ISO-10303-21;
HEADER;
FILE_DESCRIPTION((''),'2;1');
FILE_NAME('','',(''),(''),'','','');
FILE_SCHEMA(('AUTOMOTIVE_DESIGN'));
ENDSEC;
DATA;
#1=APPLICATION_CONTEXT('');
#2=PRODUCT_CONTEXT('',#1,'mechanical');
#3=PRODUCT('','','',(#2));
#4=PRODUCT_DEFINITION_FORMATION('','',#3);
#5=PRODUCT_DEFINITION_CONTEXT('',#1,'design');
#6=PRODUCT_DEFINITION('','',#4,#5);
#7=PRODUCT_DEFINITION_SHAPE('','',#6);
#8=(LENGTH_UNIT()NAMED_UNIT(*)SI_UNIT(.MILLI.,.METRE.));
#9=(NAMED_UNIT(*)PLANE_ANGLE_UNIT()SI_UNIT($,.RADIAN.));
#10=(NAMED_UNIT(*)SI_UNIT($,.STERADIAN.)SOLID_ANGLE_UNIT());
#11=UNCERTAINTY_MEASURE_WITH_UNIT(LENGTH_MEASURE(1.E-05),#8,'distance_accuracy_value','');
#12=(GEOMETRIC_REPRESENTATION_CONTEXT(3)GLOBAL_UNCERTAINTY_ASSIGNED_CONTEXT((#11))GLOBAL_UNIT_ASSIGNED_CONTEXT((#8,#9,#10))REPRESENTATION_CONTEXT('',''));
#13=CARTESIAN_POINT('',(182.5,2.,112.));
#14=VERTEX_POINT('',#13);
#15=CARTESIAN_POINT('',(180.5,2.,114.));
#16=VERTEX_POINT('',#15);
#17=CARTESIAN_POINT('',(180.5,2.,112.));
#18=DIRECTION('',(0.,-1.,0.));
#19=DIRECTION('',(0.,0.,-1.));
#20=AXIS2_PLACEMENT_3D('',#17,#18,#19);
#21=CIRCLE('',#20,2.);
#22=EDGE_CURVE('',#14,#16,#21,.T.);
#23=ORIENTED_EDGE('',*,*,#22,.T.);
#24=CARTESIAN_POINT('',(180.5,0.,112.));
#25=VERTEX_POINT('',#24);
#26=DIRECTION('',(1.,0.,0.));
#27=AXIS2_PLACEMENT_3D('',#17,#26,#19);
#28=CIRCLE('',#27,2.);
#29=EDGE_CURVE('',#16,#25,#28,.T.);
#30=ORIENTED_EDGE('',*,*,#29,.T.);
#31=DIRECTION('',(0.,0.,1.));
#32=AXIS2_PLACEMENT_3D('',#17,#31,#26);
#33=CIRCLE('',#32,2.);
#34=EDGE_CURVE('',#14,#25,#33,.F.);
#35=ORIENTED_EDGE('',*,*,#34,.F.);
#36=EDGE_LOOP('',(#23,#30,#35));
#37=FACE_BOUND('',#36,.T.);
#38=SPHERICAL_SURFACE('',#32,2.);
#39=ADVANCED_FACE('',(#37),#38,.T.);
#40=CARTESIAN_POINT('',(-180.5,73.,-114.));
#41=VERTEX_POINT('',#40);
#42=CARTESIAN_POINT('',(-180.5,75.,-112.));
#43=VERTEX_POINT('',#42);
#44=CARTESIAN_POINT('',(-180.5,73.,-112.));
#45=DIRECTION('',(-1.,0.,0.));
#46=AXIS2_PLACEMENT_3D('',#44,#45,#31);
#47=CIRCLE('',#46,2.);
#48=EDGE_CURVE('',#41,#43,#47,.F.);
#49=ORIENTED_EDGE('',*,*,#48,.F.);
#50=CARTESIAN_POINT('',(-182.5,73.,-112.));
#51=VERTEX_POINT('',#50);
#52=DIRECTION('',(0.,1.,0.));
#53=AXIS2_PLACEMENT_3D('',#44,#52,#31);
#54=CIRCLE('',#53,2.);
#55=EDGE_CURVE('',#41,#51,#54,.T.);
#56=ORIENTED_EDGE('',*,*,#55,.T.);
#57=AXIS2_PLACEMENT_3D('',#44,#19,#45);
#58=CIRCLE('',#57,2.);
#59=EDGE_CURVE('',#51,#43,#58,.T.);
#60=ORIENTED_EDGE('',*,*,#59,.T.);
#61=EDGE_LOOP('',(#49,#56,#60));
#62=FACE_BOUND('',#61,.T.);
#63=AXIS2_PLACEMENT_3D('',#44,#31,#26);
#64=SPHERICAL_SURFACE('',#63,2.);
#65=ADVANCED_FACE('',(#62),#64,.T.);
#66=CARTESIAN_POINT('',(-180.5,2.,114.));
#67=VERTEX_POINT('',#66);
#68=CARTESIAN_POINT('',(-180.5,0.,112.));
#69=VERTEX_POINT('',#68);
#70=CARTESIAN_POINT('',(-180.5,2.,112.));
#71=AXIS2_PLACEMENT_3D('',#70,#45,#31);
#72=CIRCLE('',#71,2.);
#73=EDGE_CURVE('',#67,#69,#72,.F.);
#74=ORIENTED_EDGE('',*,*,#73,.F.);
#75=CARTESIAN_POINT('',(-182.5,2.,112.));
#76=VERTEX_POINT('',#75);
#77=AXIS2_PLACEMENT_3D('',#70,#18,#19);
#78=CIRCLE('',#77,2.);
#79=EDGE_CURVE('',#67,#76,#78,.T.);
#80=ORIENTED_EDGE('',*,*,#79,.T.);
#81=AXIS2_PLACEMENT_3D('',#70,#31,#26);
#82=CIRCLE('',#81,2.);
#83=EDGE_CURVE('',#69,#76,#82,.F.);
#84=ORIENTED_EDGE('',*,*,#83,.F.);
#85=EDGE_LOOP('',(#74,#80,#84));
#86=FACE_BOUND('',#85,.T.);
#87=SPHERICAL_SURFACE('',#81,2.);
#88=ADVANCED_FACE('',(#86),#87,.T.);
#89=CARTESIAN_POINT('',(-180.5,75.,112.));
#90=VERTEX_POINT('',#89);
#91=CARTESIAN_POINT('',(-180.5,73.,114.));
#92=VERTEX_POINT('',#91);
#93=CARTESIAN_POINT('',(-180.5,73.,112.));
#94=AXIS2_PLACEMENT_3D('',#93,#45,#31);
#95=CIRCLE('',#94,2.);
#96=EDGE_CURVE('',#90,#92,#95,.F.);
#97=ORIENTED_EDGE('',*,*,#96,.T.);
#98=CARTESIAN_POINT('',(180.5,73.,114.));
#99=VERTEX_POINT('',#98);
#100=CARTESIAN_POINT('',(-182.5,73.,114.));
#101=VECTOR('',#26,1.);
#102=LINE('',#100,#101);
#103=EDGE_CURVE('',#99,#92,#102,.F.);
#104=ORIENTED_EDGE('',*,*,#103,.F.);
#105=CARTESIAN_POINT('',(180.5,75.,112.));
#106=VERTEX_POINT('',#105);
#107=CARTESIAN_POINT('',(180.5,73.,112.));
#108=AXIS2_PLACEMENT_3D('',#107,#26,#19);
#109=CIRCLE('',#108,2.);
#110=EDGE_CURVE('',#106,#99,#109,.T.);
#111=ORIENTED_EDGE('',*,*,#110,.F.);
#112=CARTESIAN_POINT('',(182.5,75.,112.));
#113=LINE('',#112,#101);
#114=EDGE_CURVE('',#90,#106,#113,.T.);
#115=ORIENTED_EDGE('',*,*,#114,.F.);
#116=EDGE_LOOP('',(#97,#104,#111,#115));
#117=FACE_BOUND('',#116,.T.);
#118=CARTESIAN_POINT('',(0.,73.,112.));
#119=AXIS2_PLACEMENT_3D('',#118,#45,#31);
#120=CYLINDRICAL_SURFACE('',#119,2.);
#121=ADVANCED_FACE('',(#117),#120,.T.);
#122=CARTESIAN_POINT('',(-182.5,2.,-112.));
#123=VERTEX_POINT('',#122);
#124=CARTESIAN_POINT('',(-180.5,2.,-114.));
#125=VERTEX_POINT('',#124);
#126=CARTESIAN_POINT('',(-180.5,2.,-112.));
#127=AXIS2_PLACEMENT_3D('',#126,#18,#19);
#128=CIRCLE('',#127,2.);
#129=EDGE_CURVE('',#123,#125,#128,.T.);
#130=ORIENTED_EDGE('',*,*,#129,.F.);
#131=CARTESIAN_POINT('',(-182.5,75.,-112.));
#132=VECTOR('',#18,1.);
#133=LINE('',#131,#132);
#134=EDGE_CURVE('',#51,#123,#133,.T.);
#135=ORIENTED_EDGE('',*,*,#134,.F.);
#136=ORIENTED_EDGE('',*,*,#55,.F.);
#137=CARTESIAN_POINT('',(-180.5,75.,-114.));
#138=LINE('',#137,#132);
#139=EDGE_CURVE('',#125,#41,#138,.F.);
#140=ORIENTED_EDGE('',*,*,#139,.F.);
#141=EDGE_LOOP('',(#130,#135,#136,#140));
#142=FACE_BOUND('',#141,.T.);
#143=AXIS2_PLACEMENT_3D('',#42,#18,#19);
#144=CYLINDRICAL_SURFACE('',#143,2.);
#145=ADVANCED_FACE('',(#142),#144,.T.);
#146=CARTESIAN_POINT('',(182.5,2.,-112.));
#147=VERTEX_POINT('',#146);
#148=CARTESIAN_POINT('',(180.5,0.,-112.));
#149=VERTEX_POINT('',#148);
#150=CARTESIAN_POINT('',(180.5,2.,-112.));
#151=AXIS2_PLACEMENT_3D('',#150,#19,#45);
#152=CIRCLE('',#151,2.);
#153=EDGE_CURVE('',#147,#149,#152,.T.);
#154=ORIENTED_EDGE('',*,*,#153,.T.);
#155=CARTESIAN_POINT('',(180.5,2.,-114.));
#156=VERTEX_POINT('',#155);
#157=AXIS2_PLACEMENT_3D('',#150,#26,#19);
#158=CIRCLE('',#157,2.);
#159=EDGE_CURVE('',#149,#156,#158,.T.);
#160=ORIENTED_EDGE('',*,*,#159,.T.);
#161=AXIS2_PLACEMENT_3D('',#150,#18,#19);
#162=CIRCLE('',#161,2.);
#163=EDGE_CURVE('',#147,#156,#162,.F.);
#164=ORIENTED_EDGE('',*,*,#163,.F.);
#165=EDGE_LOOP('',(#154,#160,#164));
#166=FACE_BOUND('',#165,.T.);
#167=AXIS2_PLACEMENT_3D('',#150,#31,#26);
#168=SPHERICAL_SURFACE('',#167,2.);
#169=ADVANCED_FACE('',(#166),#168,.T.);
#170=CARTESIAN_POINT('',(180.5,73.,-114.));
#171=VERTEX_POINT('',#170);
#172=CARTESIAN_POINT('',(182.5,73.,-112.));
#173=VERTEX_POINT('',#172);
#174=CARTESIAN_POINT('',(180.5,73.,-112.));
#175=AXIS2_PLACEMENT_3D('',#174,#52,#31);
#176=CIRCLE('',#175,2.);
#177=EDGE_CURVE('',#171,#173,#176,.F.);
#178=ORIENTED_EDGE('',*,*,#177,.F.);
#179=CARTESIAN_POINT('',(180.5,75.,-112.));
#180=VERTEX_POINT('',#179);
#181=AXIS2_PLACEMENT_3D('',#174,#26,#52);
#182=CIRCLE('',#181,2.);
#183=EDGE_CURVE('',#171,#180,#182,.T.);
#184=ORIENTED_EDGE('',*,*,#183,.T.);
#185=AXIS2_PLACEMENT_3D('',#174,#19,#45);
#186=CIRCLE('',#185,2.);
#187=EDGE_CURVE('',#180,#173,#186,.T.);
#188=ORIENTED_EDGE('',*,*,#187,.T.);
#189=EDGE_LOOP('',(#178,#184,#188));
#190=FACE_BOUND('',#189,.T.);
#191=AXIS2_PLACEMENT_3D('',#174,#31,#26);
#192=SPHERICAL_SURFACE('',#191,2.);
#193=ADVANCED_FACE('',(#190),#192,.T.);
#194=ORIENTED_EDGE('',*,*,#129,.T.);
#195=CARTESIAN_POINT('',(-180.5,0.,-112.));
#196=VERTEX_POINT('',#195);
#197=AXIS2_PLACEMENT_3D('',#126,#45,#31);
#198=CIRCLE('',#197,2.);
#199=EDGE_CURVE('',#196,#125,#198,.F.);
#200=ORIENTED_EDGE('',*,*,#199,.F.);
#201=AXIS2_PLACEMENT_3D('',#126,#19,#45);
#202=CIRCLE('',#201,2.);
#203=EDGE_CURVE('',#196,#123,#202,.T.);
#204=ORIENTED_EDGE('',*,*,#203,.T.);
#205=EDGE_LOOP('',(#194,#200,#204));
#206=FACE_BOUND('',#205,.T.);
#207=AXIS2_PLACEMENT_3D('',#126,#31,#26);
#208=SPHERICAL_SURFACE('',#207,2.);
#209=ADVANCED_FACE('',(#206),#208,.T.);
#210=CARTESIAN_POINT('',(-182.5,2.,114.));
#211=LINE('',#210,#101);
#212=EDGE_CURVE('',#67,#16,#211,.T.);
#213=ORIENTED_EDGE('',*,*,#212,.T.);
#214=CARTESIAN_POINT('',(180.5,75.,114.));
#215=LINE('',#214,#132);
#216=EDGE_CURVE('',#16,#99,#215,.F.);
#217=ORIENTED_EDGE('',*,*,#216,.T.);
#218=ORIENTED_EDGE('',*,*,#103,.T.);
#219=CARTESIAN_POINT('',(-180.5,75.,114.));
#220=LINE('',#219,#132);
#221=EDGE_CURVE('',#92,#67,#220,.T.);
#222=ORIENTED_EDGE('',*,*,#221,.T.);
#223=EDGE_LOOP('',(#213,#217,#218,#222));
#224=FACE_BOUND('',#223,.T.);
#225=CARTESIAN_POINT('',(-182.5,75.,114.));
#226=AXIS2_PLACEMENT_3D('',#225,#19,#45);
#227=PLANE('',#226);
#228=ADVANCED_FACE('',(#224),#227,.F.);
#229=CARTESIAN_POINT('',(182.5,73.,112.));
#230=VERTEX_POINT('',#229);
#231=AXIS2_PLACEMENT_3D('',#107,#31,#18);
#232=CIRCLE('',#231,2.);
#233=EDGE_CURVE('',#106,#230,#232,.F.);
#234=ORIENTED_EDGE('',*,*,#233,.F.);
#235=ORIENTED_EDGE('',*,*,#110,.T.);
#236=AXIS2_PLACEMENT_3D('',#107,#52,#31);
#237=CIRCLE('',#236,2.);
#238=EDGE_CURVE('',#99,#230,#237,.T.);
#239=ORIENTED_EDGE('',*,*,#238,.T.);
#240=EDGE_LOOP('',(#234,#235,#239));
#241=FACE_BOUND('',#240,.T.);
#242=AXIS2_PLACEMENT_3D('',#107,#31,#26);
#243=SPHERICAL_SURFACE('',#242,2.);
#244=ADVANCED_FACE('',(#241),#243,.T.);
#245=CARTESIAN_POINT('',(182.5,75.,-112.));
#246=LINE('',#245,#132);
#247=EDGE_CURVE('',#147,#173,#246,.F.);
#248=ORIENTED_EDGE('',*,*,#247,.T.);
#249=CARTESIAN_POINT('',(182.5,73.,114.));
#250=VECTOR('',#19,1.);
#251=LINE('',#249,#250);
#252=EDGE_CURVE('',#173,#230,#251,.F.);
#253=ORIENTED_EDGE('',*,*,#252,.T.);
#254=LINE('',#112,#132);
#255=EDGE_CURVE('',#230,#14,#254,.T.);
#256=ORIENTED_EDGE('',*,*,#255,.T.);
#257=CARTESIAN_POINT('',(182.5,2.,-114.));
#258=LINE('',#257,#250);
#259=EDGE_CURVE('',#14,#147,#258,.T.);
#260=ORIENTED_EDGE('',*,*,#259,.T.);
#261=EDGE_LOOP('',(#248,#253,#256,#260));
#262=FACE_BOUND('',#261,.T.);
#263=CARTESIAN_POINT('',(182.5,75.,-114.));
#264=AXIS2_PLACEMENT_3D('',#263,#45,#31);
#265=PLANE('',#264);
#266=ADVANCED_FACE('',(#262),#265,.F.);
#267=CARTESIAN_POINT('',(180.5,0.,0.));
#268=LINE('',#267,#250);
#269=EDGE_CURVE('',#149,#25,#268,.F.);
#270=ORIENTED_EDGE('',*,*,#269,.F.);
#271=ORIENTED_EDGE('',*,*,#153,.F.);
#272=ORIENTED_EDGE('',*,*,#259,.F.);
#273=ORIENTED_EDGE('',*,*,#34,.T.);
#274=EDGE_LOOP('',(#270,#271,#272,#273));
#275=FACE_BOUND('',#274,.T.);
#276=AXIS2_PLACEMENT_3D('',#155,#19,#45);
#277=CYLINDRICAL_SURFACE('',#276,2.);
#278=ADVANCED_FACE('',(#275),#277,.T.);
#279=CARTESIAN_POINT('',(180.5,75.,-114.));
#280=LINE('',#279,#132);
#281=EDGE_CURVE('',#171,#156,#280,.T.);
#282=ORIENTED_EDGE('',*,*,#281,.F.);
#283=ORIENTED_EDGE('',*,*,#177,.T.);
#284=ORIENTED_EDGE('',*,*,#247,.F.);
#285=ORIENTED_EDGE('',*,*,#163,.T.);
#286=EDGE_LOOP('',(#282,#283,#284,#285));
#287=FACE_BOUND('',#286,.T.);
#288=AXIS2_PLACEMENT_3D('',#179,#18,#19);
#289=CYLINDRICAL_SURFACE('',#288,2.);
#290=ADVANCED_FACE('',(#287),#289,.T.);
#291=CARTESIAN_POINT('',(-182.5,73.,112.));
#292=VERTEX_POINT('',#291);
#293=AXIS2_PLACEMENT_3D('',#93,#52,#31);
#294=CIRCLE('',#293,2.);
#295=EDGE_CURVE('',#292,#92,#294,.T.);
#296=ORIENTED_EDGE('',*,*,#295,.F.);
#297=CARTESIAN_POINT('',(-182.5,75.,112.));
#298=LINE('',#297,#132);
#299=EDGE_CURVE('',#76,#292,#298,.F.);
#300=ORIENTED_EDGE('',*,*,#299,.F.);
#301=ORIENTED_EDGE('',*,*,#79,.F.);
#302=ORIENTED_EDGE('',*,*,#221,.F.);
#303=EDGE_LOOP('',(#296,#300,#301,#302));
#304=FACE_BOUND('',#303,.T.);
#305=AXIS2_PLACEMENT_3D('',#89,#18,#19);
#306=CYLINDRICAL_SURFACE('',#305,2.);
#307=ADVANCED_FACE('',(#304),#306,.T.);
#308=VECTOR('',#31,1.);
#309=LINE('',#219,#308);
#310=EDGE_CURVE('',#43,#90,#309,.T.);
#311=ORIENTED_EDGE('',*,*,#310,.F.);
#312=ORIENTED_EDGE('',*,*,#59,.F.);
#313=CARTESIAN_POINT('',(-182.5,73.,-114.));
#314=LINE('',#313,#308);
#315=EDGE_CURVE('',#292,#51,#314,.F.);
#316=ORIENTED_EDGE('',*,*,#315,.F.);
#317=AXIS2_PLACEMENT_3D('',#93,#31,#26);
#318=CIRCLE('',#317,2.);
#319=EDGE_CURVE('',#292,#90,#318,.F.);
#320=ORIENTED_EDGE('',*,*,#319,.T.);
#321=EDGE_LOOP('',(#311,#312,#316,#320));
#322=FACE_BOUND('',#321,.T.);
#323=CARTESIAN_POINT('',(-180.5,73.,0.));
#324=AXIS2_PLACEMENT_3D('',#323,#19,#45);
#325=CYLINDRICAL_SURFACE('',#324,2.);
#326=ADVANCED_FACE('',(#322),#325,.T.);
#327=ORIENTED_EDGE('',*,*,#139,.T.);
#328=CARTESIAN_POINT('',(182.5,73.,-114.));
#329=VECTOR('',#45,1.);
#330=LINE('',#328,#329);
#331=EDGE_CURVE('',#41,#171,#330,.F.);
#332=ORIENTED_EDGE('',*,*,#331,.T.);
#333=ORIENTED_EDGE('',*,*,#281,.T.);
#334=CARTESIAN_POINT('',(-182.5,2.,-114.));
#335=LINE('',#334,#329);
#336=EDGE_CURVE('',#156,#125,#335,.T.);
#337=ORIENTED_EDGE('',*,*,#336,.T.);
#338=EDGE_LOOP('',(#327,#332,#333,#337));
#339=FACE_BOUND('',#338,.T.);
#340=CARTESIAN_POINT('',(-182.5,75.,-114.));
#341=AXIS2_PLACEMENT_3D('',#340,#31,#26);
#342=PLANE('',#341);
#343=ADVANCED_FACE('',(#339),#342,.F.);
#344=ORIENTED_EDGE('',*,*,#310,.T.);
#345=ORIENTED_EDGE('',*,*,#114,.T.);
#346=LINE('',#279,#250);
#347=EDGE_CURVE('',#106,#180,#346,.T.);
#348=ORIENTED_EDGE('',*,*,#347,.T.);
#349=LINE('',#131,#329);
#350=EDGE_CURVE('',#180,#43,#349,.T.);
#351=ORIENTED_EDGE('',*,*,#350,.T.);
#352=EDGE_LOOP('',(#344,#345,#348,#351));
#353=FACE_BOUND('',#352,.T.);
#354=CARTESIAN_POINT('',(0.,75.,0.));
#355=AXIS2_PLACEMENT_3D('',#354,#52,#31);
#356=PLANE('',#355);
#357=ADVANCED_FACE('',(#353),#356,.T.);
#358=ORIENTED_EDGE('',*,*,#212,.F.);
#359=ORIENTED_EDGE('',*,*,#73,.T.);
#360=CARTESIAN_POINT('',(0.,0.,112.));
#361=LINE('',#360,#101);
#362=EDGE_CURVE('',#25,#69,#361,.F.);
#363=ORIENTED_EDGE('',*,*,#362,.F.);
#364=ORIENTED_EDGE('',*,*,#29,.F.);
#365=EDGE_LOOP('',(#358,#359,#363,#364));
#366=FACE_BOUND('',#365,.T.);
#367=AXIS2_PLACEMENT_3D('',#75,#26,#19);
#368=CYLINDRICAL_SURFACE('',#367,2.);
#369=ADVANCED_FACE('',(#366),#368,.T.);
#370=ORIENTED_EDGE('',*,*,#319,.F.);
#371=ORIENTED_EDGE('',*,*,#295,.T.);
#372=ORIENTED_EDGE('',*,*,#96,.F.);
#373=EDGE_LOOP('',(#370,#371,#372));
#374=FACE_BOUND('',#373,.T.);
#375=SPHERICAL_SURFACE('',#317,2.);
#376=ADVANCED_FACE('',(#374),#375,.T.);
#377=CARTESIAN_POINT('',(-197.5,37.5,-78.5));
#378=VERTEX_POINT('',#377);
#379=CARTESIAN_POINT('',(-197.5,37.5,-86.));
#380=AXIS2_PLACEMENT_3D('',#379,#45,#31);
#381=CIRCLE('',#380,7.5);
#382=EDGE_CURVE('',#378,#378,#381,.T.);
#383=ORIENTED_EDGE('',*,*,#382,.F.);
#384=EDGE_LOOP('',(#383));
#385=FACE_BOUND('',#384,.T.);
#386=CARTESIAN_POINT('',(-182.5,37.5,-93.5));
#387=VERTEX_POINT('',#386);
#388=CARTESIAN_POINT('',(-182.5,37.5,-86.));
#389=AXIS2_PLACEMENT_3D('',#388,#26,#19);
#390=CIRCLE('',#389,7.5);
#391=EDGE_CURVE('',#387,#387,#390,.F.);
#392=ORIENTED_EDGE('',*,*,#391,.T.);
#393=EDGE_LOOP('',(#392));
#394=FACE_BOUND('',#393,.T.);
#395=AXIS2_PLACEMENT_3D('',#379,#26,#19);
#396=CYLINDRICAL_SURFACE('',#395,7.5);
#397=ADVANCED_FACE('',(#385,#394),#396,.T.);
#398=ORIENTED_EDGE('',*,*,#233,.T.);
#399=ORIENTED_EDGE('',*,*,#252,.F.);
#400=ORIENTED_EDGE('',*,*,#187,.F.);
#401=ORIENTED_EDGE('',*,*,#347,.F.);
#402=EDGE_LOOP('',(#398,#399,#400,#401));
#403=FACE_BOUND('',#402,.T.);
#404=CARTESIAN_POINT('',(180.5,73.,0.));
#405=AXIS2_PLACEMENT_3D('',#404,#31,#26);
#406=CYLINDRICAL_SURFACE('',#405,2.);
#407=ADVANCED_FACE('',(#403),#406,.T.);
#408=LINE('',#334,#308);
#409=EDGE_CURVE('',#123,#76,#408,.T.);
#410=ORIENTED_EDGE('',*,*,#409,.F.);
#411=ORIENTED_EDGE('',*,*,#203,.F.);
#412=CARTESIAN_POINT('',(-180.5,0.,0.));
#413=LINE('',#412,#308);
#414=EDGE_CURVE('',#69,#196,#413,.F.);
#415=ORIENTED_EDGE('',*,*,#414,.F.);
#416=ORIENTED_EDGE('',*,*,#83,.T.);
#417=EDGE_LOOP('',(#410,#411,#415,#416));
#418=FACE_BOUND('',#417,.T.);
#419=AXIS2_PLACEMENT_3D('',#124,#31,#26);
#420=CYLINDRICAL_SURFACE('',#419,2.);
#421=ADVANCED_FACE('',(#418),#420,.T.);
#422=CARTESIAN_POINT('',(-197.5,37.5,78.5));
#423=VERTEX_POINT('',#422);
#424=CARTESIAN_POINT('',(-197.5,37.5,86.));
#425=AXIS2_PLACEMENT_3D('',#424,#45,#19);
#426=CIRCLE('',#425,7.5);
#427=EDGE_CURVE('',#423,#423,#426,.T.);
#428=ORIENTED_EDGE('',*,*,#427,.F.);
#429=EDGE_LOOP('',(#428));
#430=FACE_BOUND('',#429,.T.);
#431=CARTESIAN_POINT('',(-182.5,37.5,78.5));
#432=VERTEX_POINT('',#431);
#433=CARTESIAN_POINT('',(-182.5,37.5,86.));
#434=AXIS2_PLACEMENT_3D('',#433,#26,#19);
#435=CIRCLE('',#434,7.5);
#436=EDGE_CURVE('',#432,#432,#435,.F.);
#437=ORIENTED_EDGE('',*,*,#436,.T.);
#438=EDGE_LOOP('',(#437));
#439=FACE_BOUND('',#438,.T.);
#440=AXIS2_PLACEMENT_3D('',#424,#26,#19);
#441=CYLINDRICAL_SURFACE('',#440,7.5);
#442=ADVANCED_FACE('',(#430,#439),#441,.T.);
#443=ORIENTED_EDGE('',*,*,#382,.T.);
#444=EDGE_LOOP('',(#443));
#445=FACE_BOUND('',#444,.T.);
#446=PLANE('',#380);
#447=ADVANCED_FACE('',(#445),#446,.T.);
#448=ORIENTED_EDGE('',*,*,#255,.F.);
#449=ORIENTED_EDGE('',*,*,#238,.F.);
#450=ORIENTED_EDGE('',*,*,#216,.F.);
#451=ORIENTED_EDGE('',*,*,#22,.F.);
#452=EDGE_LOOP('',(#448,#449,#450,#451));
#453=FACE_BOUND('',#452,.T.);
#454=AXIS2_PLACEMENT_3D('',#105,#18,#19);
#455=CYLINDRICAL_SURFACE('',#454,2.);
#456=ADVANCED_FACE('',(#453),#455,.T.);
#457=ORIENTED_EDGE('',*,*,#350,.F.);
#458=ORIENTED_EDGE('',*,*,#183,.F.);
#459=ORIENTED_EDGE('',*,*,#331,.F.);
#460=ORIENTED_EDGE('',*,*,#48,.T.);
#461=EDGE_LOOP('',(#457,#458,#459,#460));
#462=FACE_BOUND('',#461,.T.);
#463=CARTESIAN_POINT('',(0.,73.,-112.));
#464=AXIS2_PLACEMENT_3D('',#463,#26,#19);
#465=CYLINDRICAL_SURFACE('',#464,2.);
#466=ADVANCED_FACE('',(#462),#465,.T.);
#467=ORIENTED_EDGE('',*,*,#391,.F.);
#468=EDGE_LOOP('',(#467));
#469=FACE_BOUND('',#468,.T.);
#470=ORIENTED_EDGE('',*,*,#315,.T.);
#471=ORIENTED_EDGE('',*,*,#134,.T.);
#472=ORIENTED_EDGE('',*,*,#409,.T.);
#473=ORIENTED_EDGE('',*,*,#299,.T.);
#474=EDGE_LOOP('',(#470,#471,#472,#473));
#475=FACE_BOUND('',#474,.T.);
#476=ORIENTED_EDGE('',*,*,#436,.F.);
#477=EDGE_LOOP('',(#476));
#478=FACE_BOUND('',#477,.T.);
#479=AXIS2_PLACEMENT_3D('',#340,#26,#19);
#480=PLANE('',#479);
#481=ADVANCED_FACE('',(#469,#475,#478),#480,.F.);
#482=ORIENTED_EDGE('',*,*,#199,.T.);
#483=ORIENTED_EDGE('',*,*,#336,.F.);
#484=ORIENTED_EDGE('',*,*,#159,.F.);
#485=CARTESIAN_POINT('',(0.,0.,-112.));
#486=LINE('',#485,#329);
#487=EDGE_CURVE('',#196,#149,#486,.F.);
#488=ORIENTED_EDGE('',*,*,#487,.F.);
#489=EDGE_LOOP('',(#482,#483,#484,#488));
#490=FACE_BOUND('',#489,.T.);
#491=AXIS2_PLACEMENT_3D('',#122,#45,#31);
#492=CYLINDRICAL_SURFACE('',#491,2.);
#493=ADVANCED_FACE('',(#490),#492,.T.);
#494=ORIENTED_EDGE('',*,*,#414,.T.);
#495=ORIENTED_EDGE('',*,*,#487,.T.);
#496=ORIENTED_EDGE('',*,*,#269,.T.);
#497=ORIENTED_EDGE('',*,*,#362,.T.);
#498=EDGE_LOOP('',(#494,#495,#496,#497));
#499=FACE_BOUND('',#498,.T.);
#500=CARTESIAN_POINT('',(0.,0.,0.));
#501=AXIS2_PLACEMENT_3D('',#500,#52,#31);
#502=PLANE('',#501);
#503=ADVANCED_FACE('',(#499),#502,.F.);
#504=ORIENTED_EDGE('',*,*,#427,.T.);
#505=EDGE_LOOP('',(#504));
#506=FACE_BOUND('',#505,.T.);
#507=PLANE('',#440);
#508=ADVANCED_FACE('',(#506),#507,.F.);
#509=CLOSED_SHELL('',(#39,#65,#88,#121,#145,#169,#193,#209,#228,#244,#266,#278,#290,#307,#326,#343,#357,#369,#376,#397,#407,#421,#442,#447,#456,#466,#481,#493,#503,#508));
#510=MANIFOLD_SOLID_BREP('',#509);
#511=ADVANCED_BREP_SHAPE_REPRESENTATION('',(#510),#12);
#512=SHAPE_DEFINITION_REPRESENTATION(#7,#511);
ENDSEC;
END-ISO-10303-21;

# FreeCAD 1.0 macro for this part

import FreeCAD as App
import Part
import Sketcher


def edges_at(feature, points):
    """Names of the edges that pass closest to the given points."""
    edges = feature.Shape.Edges
    near = lambda p: min(range(len(edges)), key=lambda i: edges[i].distToShape(Part.Vertex(*p))[0])
    return sorted({f"Edge{near(p) + 1}" for p in points})


def add_polygon(sketch, points):
    """Adds a closed chain of lines whose ends are joined by coincident constraints."""
    first, n = sketch.GeometryCount, len(points)
    for a, b in zip(points, points[1:] + points[:1]):
        sketch.addGeometry(Part.LineSegment(App.Vector(*a, 0), App.Vector(*b, 0)), False)
    for i in range(n):
        sketch.addConstraint(Sketcher.Constraint("Coincident", first + i, 2, first + (i + 1) % n, 1))

doc = App.newDocument("Part")
body = doc.addObject("PartDesign::Body", "Body")

# Sketch on XZ plane
sketch1 = doc.addObject("Sketcher::SketchObject", "Sketch")
body.addObject(sketch1)
sketch1.AttachmentSupport = (doc.XZ_Plane, [""])
sketch1.MapMode = "FlatFace"
add_polygon(sketch1, [(-182, -114), (-182, 114), (182, 114), (182, -114)])  # lines 0-3
sketch1.addConstraint(Sketcher.Constraint("Vertical", 0))
sketch1.addConstraint(Sketcher.Constraint("Horizontal", 1))
sketch1.addConstraint(Sketcher.Constraint("Vertical", 2))
sketch1.addConstraint(Sketcher.Constraint("Horizontal", 3))
sketch1.addConstraint(Sketcher.Constraint("Symmetric", 0, 2, 2, 2, -1, 1))
sketch1.addConstraint(Sketcher.Constraint("DistanceX", 1, 1, 1, 2, 365.0))
sketch1.addConstraint(Sketcher.Constraint("DistanceY", 0, 1, 0, 2, 228.0))
pad1 = doc.addObject("PartDesign::Pad", "Pad")
body.addObject(pad1)
pad1.Profile = sketch1
pad1.Length = 75
pad1.Reversed = True

# Sketch on YZ plane
sketch2 = doc.addObject("Sketcher::SketchObject", "Sketch001")
body.addObject(sketch2)
sketch2.AttachmentSupport = (doc.YZ_Plane, [""])
sketch2.MapMode = "FlatFace"
sketch2.AttachmentOffset = App.Placement(App.Vector(0, 0, -182.5), App.Rotation())
sketch2.addGeometry(Part.Circle(App.Vector(38, -86, 0), App.Vector(0, 0, 1), 8), False)
sketch2.addGeometry(Part.Circle(App.Vector(38, 86, 0), App.Vector(0, 0, 1), 8), False)
sketch2.addConstraint(Sketcher.Constraint("Equal", 0, 1))
sketch2.addConstraint(Sketcher.Constraint("Symmetric", 0, 3, 1, 3, -1))
sketch2.addConstraint(Sketcher.Constraint("Diameter", 0, 15.0))
sketch2.addConstraint(Sketcher.Constraint("DistanceY", 0, 3, -1, 1, 86.0))
sketch2.addConstraint(Sketcher.Constraint("DistanceX", -1, 1, 0, 3, 37.5))
pad2 = doc.addObject("PartDesign::Pad", "Pad001")
body.addObject(pad2)
pad2.Profile = sketch2
pad2.Length = 15
pad2.Reversed = True
doc.recompute()

fillet = doc.addObject("PartDesign::Fillet", "Fillet")
body.addObject(fillet)
fillet.Base = (pad2, edges_at(pad2, [
    (182.5, 75, 0),
    (0, 75, -114),
    (-182.5, 75, 0),
    (0, 0, -114),
    (182.5, 0, 0),
    (0, 0, 114),
    (-182.5, 0, 0),
    (-182.5, 37.5, -114),
    (182.5, 37.5, -114),
    (182.5, 37.5, 114),
    (-182.5, 37.5, 114),
    (0, 75, 114),
]))
fillet.Radius = 2

doc.recompute()
